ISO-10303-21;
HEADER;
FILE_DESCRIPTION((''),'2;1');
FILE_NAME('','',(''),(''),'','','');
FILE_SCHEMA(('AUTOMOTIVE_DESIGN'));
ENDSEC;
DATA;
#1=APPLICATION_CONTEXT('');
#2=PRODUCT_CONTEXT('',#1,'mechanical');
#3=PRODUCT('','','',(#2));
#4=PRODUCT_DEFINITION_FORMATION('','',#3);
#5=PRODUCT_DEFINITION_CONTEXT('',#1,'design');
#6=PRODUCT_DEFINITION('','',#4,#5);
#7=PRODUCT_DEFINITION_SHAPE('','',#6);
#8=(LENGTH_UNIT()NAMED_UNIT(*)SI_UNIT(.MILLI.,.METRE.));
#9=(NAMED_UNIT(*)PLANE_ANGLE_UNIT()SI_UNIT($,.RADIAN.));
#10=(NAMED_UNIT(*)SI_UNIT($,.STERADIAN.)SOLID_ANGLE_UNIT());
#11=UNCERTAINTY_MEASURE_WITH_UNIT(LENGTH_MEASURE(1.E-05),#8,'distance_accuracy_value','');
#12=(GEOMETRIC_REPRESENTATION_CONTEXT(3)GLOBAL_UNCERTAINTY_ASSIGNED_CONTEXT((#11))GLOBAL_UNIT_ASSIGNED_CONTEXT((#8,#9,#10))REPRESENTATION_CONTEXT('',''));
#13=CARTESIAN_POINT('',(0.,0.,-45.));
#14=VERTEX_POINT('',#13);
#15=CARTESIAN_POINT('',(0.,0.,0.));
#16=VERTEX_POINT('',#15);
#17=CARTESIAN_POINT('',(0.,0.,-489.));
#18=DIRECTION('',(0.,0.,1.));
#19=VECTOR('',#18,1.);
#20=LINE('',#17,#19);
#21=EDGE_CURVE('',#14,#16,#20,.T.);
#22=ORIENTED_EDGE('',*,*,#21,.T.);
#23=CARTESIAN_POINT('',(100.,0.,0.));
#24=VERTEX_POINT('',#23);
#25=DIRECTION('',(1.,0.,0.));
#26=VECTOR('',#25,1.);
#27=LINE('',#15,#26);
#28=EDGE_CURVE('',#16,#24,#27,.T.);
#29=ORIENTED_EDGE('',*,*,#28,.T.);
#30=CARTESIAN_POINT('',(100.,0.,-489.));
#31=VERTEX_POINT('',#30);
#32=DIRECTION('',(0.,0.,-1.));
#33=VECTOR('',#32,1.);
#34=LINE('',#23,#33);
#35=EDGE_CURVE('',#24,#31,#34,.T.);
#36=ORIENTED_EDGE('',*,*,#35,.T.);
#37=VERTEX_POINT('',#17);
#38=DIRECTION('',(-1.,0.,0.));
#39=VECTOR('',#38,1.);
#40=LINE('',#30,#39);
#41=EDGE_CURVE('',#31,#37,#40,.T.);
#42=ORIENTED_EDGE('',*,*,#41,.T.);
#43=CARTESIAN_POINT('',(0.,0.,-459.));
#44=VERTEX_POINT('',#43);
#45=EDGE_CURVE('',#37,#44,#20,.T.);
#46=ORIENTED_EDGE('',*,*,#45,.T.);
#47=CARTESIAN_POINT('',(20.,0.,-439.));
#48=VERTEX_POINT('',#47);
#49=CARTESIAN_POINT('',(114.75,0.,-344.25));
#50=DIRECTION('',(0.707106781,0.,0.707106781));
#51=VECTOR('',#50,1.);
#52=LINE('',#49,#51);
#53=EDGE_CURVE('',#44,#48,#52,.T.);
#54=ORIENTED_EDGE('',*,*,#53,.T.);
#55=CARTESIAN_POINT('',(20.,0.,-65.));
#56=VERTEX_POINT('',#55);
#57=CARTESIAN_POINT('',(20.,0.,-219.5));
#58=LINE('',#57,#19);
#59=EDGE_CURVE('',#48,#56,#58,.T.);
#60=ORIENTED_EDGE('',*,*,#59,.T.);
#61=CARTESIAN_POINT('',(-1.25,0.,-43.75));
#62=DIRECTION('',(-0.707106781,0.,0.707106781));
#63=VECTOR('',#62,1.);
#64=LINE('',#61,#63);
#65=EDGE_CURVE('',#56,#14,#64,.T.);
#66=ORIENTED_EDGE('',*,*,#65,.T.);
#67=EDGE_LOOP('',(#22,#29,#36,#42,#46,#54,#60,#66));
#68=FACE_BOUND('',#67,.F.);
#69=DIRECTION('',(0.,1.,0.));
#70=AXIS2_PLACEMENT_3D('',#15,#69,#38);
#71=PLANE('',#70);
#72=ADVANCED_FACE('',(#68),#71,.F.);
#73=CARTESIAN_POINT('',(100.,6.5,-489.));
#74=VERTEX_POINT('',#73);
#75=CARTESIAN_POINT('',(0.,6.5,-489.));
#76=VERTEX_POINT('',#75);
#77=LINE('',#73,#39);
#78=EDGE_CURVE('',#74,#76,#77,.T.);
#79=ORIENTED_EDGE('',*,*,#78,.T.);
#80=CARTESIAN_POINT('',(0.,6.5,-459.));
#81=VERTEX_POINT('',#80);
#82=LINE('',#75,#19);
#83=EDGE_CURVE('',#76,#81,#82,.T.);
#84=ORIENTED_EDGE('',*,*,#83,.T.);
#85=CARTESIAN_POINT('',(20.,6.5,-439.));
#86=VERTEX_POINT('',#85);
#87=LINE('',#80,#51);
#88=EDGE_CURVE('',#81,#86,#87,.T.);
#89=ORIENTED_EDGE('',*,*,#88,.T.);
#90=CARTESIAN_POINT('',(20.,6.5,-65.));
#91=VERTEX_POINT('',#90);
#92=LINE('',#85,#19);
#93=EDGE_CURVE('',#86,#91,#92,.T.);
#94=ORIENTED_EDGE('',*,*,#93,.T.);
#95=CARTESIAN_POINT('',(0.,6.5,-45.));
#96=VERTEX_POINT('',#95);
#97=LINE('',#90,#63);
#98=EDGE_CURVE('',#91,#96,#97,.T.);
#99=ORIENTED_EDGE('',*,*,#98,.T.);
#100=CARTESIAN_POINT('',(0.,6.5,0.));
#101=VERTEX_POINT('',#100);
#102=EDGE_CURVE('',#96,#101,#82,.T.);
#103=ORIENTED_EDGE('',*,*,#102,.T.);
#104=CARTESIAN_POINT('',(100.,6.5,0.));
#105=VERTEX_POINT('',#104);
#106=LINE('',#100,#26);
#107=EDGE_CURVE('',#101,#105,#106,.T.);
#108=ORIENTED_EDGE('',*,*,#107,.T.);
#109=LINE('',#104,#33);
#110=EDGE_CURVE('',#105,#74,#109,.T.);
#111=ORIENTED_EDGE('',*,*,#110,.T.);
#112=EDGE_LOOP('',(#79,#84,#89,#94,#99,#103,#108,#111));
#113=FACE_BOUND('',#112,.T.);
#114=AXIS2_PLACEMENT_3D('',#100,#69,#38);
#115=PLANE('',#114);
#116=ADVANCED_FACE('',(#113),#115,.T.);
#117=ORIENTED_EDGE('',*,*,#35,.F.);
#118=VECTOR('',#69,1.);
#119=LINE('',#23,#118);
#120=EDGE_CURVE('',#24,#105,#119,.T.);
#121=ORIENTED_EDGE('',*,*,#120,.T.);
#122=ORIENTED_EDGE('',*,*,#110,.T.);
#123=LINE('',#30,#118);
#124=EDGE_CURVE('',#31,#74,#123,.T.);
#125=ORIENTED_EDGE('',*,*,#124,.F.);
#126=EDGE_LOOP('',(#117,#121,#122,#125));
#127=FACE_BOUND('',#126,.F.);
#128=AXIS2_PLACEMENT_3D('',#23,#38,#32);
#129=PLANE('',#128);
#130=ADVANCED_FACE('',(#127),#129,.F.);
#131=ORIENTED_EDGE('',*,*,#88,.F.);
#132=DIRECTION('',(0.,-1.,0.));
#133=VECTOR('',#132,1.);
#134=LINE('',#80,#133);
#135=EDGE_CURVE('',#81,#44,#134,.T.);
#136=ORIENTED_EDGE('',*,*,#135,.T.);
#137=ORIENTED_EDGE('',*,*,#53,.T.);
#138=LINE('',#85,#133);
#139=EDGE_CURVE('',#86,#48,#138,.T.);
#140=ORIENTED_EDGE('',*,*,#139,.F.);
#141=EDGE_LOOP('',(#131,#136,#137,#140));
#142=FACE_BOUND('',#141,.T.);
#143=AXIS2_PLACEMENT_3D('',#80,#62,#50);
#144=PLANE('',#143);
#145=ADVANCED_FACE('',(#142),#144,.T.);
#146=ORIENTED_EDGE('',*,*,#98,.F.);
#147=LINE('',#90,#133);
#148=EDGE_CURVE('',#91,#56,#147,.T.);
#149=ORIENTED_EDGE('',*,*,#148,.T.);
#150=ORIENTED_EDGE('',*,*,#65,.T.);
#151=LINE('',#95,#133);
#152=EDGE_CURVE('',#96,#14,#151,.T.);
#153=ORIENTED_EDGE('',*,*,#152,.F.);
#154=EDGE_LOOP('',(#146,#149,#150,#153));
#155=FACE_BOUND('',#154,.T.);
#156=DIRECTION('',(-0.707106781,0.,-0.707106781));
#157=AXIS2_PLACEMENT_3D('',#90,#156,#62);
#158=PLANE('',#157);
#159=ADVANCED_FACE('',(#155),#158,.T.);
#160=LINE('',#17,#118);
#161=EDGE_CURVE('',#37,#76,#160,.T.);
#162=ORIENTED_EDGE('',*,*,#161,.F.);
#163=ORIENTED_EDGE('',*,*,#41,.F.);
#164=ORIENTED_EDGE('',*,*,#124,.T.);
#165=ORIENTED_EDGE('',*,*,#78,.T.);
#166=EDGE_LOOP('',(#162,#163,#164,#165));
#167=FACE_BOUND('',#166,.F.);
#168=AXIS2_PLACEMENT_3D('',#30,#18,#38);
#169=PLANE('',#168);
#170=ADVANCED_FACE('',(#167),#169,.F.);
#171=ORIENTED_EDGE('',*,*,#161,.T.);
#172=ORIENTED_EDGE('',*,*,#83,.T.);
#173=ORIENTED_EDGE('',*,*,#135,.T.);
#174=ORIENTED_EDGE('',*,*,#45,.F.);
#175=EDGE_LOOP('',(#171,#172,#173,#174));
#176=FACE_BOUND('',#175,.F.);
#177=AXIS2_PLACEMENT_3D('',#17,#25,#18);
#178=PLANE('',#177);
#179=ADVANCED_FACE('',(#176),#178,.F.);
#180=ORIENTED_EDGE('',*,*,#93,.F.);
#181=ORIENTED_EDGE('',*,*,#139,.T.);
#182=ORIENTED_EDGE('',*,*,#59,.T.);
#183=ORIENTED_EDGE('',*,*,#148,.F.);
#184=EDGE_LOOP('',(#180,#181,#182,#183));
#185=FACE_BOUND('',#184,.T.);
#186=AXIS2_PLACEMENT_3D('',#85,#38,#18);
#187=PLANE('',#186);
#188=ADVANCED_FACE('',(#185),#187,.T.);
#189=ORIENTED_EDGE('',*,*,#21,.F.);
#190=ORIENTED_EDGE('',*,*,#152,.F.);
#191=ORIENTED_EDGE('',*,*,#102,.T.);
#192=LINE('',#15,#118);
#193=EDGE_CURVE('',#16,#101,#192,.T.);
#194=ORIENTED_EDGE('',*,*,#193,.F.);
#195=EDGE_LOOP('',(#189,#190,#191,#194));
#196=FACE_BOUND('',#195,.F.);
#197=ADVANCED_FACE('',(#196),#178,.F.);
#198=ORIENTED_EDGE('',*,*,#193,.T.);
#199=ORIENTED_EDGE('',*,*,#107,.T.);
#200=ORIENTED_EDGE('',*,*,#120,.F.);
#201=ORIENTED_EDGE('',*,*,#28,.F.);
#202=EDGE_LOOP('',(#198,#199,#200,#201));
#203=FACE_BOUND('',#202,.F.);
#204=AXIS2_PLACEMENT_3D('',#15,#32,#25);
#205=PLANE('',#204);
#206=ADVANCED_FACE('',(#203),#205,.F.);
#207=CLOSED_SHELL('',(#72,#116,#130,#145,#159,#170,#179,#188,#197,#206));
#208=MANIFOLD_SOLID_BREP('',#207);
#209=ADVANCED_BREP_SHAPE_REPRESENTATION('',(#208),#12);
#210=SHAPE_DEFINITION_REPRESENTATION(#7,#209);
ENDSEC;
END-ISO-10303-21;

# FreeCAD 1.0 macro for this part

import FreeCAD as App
import Part
import Sketcher

V = App.Vector
Q = App.Units.Quantity


def add_polygon(sketch, points):
    """Adds a closed chain of lines whose ends are joined by coincident constraints."""
    first, n = sketch.GeometryCount, len(points)
    for a, b in zip(points, points[1:] + points[:1]):
        sketch.addGeometry(Part.LineSegment(App.Vector(*a, 0), App.Vector(*b, 0)), False)
    for i in range(n):
        sketch.addConstraint(Sketcher.Constraint("Coincident", first + i, 2, first + (i + 1) % n, 1))

doc = App.newDocument("Part")
body = doc.addObject("PartDesign::Body", "Body")

# Sketch on XZ plane
sketch1 = doc.addObject("Sketcher::SketchObject", "Sketch")
body.addObject(sketch1)
sketch1.AttachmentSupport = (doc.XZ_Plane, [""])
sketch1.MapMode = "FlatFace"
add_polygon(sketch1, [(0, -489), (0, 0), (100, 0), (100, -489)])  # lines 0-3
sketch1.addConstraint([
    Sketcher.Constraint("Vertical", 0),
    Sketcher.Constraint("Horizontal", 1),
    Sketcher.Constraint("Vertical", 2),
    Sketcher.Constraint("Horizontal", 3),
    Sketcher.Constraint("Coincident", 0, 2, -1, 1),
    Sketcher.Constraint("DistanceX", 1, 1, 1, 2, Q("100 mm")),
    Sketcher.Constraint("DistanceY", 0, 1, 0, 2, Q("489 mm")),
])
pad1 = doc.addObject("PartDesign::Pad", "Pad")
body.addObject(pad1)
pad1.Profile = sketch1
pad1.Length = 6.5
pad1.Reversed = True

# Sketch on XZ plane
sketch2 = doc.addObject("Sketcher::SketchObject", "Sketch001")
body.addObject(sketch2)
sketch2.AttachmentSupport = (doc.XZ_Plane, [""])
sketch2.MapMode = "FlatFace"
sketch2.AttachmentOffset = App.Placement(V(0, 0, -6.5), App.Rotation())
add_polygon(sketch2, [(20, -439), (0, -459), (0, -45), (20, -65)])  # lines 0-3
sketch2.addConstraint([
    Sketcher.Constraint("Vertical", 1),
    Sketcher.Constraint("Vertical", 3),
    Sketcher.Constraint("PointOnObject", 0, 2, -2),
    Sketcher.Constraint("Perpendicular", 0, 2),
    Sketcher.Constraint("Equal", 0, 2),
    Sketcher.Constraint("DistanceY", 1, 2, -1, 1, Q("45 mm")),
    Sketcher.Constraint("DistanceX", -1, 1, 2, 2, Q("20 mm")),
    Sketcher.Constraint("DistanceY", 1, 1, 1, 2, Q("414 mm")),
])
pocket1 = doc.addObject("PartDesign::Pocket", "Pocket")
body.addObject(pocket1)
pocket1.Profile = sketch2
pocket1.Type = "ThroughAll"
pocket1.Reversed = True

doc.recompute()
